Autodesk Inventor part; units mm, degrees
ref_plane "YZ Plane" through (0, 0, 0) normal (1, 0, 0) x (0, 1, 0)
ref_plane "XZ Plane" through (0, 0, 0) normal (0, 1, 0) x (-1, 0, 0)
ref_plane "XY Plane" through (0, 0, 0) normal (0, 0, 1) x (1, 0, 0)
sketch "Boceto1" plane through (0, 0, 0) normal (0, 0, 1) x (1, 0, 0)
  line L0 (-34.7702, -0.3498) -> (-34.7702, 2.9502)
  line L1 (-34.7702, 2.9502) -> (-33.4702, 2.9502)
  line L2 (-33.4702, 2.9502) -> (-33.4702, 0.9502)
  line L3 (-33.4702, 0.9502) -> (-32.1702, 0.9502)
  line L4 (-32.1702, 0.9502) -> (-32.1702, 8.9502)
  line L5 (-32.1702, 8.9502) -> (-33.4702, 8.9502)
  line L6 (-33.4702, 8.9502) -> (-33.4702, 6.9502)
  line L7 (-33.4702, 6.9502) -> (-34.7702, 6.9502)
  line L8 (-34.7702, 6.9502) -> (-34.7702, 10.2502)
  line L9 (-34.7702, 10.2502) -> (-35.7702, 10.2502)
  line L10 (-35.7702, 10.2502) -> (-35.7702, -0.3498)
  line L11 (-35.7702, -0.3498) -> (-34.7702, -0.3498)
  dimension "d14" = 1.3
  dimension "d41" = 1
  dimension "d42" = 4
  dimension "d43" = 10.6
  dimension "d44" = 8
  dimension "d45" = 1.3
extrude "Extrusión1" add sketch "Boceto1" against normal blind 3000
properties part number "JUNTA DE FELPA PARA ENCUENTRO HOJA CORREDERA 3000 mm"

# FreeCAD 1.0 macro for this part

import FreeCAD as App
import Part
import Sketcher
from FreeCAD import Vector
Q = App.Units.Quantity


def add_polygon(sketch, points):
    """Adds a closed chain of lines whose ends are joined by coincident constraints."""
    first, n = sketch.GeometryCount, len(points)
    for a, b in zip(points, points[1:] + points[:1]):
        sketch.addGeometry(Part.LineSegment(App.Vector(*a, 0), App.Vector(*b, 0)), False)
    for i in range(n):
        sketch.addConstraint(Sketcher.Constraint("Coincident", first + i, 2, first + (i + 1) % n, 1))

doc = App.newDocument("Part")
body = doc.addObject("PartDesign::Body", "Body")

# Sketch on XY plane
sketch1 = body.newObject("Sketcher::SketchObject", "Sketch")
sketch1.AttachmentSupport = (doc.getObject("XY_Plane"), [""])
sketch1.MapMode = "FlatFace"
add_polygon(sketch1, [(-35.8, -0.3), (-34.8, -0.3), (-34.8, 3), (-33.5, 3), (-33.5, 1), (-32.2, 1), (-32.2, 9), (-33.5, 9), (-33.5, 7), (-34.8, 7), (-34.8, 10.3), (-35.8, 10.3)])  # lines 0-11
sketch1.addConstraint([
    Sketcher.Constraint("Horizontal", 0),
    Sketcher.Constraint("Vertical", 1),
    Sketcher.Constraint("Horizontal", 2),
    Sketcher.Constraint("Vertical", 3),
    Sketcher.Constraint("Horizontal", 4),
    Sketcher.Constraint("Vertical", 5),
    Sketcher.Constraint("Horizontal", 6),
    Sketcher.Constraint("Vertical", 7),
    Sketcher.Constraint("Horizontal", 8),
    Sketcher.Constraint("Vertical", 9),
    Sketcher.Constraint("Horizontal", 10),
    Sketcher.Constraint("Vertical", 11),
    Sketcher.Constraint("Vertical", 3, 2, 6, 2),
    Sketcher.Constraint("Vertical", 1, 2, 8, 2),
    Sketcher.Constraint("Equal", 2, 4),
    Sketcher.Constraint("Equal", 3, 7),
    Sketcher.Constraint("Equal", 1, 9),
    Sketcher.Constraint("DistanceX", 0, 1, 0, 2, Q("1 mm")),
    Sketcher.Constraint("DistanceY", 5, 1, 5, 2, Q("8 mm")),
    Sketcher.Constraint("DistanceX", 2, 1, 2, 2, Q("1.3 mm")),
    Sketcher.Constraint("DistanceY", 11, 2, 11, 1, Q("10.6 mm")),
    Sketcher.Constraint("DistanceY", 2, 2, 7, 2, Q("4 mm")),
    Sketcher.Constraint("DistanceX", 0, 2, -1, 1, Q("34.7702 mm")),
    Sketcher.Constraint("DistanceY", 0, 2, -1, 1, Q("0.3498 mm")),
])
pad1 = body.newObject("PartDesign::Pad", "Pad")
pad1.Profile = sketch1
pad1.Length = 3000
pad1.Reversed = True

doc.recompute()
